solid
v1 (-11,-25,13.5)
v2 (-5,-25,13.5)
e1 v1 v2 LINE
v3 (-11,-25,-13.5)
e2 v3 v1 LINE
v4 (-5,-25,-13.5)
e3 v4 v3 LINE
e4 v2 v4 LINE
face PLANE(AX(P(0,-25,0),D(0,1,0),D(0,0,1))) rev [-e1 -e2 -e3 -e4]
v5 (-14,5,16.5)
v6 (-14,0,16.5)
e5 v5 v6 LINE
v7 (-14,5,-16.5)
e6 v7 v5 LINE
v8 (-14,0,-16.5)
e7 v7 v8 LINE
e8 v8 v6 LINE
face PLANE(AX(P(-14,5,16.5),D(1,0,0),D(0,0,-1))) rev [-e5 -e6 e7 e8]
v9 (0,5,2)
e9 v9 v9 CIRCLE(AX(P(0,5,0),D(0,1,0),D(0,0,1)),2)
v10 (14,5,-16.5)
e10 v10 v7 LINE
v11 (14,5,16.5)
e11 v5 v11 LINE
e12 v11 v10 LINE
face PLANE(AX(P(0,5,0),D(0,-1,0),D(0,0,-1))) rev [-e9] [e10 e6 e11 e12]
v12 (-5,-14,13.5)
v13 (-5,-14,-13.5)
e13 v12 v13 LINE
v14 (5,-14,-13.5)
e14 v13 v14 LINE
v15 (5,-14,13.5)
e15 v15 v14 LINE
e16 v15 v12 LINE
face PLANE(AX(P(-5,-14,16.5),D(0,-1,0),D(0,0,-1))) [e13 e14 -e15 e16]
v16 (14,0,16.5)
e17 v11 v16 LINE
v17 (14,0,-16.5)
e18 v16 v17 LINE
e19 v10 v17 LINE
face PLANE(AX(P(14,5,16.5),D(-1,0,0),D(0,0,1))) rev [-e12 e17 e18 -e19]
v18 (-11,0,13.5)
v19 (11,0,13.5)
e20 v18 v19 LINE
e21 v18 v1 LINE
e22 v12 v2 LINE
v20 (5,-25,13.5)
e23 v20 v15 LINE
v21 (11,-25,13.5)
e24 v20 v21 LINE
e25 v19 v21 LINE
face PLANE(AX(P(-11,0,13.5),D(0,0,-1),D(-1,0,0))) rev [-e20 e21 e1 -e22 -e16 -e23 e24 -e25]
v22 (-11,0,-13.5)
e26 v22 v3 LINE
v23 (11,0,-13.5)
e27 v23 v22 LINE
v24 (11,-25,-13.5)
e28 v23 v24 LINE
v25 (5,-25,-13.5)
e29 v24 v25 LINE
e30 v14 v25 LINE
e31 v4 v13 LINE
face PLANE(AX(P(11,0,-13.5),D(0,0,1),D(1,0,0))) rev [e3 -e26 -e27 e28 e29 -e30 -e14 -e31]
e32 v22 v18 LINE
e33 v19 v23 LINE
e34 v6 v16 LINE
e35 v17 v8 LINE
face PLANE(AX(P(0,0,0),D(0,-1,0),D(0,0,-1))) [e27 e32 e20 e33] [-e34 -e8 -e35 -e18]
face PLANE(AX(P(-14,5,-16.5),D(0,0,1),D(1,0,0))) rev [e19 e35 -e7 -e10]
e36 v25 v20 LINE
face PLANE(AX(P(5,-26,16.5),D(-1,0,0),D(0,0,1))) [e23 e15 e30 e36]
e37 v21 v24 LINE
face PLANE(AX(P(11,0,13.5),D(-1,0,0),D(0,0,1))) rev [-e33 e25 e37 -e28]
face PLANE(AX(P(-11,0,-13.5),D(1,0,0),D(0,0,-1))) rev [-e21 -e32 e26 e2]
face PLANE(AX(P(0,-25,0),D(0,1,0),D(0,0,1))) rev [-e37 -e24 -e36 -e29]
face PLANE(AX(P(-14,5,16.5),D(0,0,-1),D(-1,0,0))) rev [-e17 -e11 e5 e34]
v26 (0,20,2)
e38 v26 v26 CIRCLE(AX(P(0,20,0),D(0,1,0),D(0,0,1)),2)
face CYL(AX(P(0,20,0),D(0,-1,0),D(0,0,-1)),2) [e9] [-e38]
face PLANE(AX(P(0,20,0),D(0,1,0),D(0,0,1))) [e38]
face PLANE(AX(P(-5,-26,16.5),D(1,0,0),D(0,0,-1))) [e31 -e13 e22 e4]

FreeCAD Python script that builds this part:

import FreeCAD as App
import Part
import Sketcher

V = App.Vector
Q = App.Units.Quantity


def add_polygon(sketch, points):
    """Adds a closed chain of lines whose ends are joined by coincident constraints."""
    first, n = sketch.GeometryCount, len(points)
    for a, b in zip(points, points[1:] + points[:1]):
        sketch.addGeometry(Part.LineSegment(App.Vector(*a, 0), App.Vector(*b, 0)), False)
    for i in range(n):
        sketch.addConstraint(Sketcher.Constraint("Coincident", first + i, 2, first + (i + 1) % n, 1))

doc = App.newDocument("Part")
body = doc.addObject("PartDesign::Body", "Body")

sketch1 = body.newObject("Sketcher::SketchObject", "Sketch")
sketch1.AttachmentSupport = (doc.getObject("XZ_Plane"), [""])
sketch1.MapMode = "FlatFace"
add_polygon(sketch1, [(-14, -16), (-14, 16), (14, 16), (14, -16)])
sketch1.addConstraint([
    Sketcher.Constraint("Vertical", 0),
    Sketcher.Constraint("Horizontal", 1),
    Sketcher.Constraint("Vertical", 2),
    Sketcher.Constraint("Horizontal", 3),
    Sketcher.Constraint("Symmetric", 0, 2, 2, 2, -1, 1),
    Sketcher.Constraint("DistanceX", 1, 1, 1, 2, Q("28 mm")),
    Sketcher.Constraint("DistanceY", 0, 1, 0, 2, Q("33 mm")),
])
pad1 = body.newObject("PartDesign::Pad", "Pad")
pad1.Profile = sketch1
pad1.Length = 5
pad1.Reversed = True

sketch2 = body.newObject("Sketcher::SketchObject", "Sketch001")
sketch2.AttachmentSupport = (doc.getObject("XZ_Plane"), [""])
sketch2.MapMode = "FlatFace"
sketch2.AttachmentOffset = App.Placement(V(0, 0, 14), App.Rotation())
add_polygon(sketch2, [(-11, -14), (-11, 14), (11, 14), (11, -14)])
sketch2.addConstraint([
    Sketcher.Constraint("Vertical", 0),
    Sketcher.Constraint("Horizontal", 1),
    Sketcher.Constraint("Vertical", 2),
    Sketcher.Constraint("Horizontal", 3),
    Sketcher.Constraint("Symmetric", 0, 2, 2, 2, -1, 1),
    Sketcher.Constraint("DistanceX", 1, 1, 1, 2, Q("22 mm")),
    Sketcher.Constraint("DistanceY", 0, 1, 0, 2, Q("27 mm")),
])
pad2 = body.newObject("PartDesign::Pad", "Pad001")
pad2.Profile = sketch2
pad2.Length = 14
pad2.Reversed = True

sketch3 = body.newObject("Sketcher::SketchObject", "Sketch002")
sketch3.AttachmentSupport = (doc.getObject("XZ_Plane"), [""])
sketch3.MapMode = "FlatFace"
sketch3.AttachmentOffset = App.Placement(V(0, 0, 25), App.Rotation())
add_polygon(sketch3, [(-11, -14), (-11, 14), (11, 14), (11, -14)])
sketch3.addConstraint([
    Sketcher.Constraint("Vertical", 0),
    Sketcher.Constraint("Horizontal", 1),
    Sketcher.Constraint("Vertical", 2),
    Sketcher.Constraint("Horizontal", 3),
    Sketcher.Constraint("Symmetric", 0, 2, 2, 2, -1, 1),
    Sketcher.Constraint("DistanceX", 1, 1, 1, 2, Q("22 mm")),
    Sketcher.Constraint("DistanceY", 0, 1, 0, 2, Q("27 mm")),
])
pad3 = body.newObject("PartDesign::Pad", "Pad002")
pad3.Profile = sketch3
pad3.Length = 11
pad3.Reversed = True

sketch4 = body.newObject("Sketcher::SketchObject", "Sketch003")
sketch4.AttachmentSupport = (doc.getObject("XY_Plane"), [""])
sketch4.MapMode = "FlatFace"
add_polygon(sketch4, [(-5, -14), (-5, -26), (5, -26), (5, -14)])
sketch4.addConstraint([
    Sketcher.Constraint("Vertical", 0),
    Sketcher.Constraint("Horizontal", 1),
    Sketcher.Constraint("Vertical", 2),
    Sketcher.Constraint("Horizontal", 3),
    Sketcher.Constraint("DistanceX", 1, 1, 1, 2, Q("10 mm")),
    Sketcher.Constraint("DistanceY", 0, 2, 0, 1, Q("12 mm")),
    Sketcher.Constraint("DistanceX", 0, 2, -1, 1, Q("5 mm")),
    Sketcher.Constraint("DistanceY", 0, 2, -1, 1, Q("26 mm")),
])
pocket1 = body.newObject("PartDesign::Pocket", "Pocket")
pocket1.Profile = sketch4
pocket1.Type = "ThroughAll"
pocket1.Midplane = True

sketch5 = body.newObject("Sketcher::SketchObject", "Sketch004")
sketch5.AttachmentSupport = (doc.getObject("XZ_Plane"), [""])
sketch5.MapMode = "FlatFace"
sketch5.AttachmentOffset = App.Placement(V(0, 0, -5), App.Rotation())
sketch5.addGeometry(Part.Circle(V(0, 0, 0), V(0, 0, 1), 2), False)
sketch5.addConstraint([
    Sketcher.Constraint("Coincident", 0, 3, -1, 1),
    Sketcher.Constraint("Diameter", 0, Q("4 mm")),
])
pad4 = body.newObject("PartDesign::Pad", "Pad003")
pad4.Profile = sketch5
pad4.Length = 15
pad4.Reversed = True

doc.recompute()
